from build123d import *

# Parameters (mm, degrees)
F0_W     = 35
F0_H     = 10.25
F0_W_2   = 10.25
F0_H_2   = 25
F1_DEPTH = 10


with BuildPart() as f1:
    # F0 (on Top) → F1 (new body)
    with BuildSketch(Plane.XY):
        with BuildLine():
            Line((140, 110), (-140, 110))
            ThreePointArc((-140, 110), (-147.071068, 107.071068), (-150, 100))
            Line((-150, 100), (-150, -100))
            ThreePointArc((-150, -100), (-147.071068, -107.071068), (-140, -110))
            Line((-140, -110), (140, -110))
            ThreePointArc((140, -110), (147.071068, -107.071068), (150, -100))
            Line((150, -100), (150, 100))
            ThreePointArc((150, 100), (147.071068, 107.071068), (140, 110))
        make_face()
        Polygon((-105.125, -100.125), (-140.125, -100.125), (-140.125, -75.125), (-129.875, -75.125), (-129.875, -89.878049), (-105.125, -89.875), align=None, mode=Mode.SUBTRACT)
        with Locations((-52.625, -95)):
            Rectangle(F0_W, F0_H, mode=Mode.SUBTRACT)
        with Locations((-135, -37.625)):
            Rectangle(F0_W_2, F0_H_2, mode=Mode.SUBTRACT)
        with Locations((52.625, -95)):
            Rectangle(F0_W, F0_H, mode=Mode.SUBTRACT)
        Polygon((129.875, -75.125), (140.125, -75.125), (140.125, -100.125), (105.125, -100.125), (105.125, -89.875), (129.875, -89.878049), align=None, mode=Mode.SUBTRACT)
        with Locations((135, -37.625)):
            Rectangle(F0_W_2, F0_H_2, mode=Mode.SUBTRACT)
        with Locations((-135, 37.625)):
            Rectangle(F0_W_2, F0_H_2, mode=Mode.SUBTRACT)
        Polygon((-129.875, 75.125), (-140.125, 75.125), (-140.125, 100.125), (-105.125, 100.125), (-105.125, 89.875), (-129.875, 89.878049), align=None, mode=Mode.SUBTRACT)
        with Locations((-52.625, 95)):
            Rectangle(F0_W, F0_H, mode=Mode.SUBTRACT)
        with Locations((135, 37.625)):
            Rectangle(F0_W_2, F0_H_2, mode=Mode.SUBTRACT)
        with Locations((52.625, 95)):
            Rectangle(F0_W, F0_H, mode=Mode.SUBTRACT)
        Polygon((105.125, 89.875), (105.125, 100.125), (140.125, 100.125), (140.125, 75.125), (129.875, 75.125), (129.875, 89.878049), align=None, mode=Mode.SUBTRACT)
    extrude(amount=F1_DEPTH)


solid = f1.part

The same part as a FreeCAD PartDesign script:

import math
import FreeCAD as App
import Part
import Sketcher
from FreeCAD import Vector
Q = App.Units.Quantity

doc = App.newDocument("Part")
body = doc.addObject("PartDesign::Body", "Body")

# Sketch on XY plane
sketch1 = doc.addObject("Sketcher::SketchObject", "Sketch")
body.addObject(sketch1)
sketch1.AttachmentSupport = (doc.XY_Plane, [""])
sketch1.MapMode = "FlatFace"
sketch1.addGeometry(Part.LineSegment(Vector(140, 110, 0), Vector(-140, 110, 0)), False)
sketch1.addGeometry(Part.ArcOfCircle(Part.Circle(Vector(-140, 100, 0), Vector(0, 0, 1), 10), math.radians(90), math.radians(180)), False)
sketch1.addGeometry(Part.LineSegment(Vector(-150, 100, 0), Vector(-150, -100, 0)), False)
sketch1.addGeometry(Part.ArcOfCircle(Part.Circle(Vector(-140, -100, 0), Vector(0, 0, 1), 10), math.radians(180), math.radians(270)), False)
sketch1.addGeometry(Part.LineSegment(Vector(-140, -110, 0), Vector(140, -110, 0)), False)
sketch1.addGeometry(Part.ArcOfCircle(Part.Circle(Vector(140, -100, 0), Vector(0, 0, 1), 10), math.radians(-90), math.radians(0)), False)
sketch1.addGeometry(Part.LineSegment(Vector(150, -100, 0), Vector(150, 100, 0)), False)
sketch1.addGeometry(Part.ArcOfCircle(Part.Circle(Vector(140, 100, 0), Vector(0, 0, 1), 10), math.radians(0), math.radians(90)), False)
sketch1.addGeometry(Part.LineSegment(Vector(-105, -90, 0), Vector(-105, -100, 0)), False)
sketch1.addGeometry(Part.LineSegment(Vector(-105, -100, 0), Vector(-140, -100, 0)), False)
sketch1.addGeometry(Part.LineSegment(Vector(-140, -100, 0), Vector(-140, -75, 0)), False)
sketch1.addGeometry(Part.LineSegment(Vector(-140, -75, 0), Vector(-130, -75, 0)), False)
sketch1.addGeometry(Part.LineSegment(Vector(-130, -75, 0), Vector(-130, -90, 0)), False)
sketch1.addGeometry(Part.LineSegment(Vector(-130, -90, 0), Vector(-105, -90, 0)), False)
sketch1.addGeometry(Part.LineSegment(Vector(-35, -100, 0), Vector(-70, -100, 0)), False)
sketch1.addGeometry(Part.LineSegment(Vector(-70, -100, 0), Vector(-70, -90, 0)), False)
sketch1.addGeometry(Part.LineSegment(Vector(-70, -90, 0), Vector(-35, -90, 0)), False)
sketch1.addGeometry(Part.LineSegment(Vector(-35, -90, 0), Vector(-35, -100, 0)), False)
sketch1.addGeometry(Part.LineSegment(Vector(-130, -50, 0), Vector(-140, -50, 0)), False)
sketch1.addGeometry(Part.LineSegment(Vector(-140, -50, 0), Vector(-140, -25, 0)), False)
sketch1.addGeometry(Part.LineSegment(Vector(-140, -25, 0), Vector(-130, -25, 0)), False)
sketch1.addGeometry(Part.LineSegment(Vector(-130, -25, 0), Vector(-130, -50, 0)), False)
sketch1.addGeometry(Part.LineSegment(Vector(70, -100, 0), Vector(35, -100, 0)), False)
sketch1.addGeometry(Part.LineSegment(Vector(35, -100, 0), Vector(35, -90, 0)), False)
sketch1.addGeometry(Part.LineSegment(Vector(35, -90, 0), Vector(70, -90, 0)), False)
sketch1.addGeometry(Part.LineSegment(Vector(70, -90, 0), Vector(70, -100, 0)), False)
sketch1.addGeometry(Part.LineSegment(Vector(130, -90, 0), Vector(130, -75, 0)), False)
sketch1.addGeometry(Part.LineSegment(Vector(130, -75, 0), Vector(140, -75, 0)), False)
sketch1.addGeometry(Part.LineSegment(Vector(140, -75, 0), Vector(140, -100, 0)), False)
sketch1.addGeometry(Part.LineSegment(Vector(140, -100, 0), Vector(105, -100, 0)), False)
sketch1.addGeometry(Part.LineSegment(Vector(105, -100, 0), Vector(105, -90, 0)), False)
sketch1.addGeometry(Part.LineSegment(Vector(105, -90, 0), Vector(130, -90, 0)), False)
sketch1.addGeometry(Part.LineSegment(Vector(140, -50, 0), Vector(130, -50, 0)), False)
sketch1.addGeometry(Part.LineSegment(Vector(130, -50, 0), Vector(130, -25, 0)), False)
sketch1.addGeometry(Part.LineSegment(Vector(130, -25, 0), Vector(140, -25, 0)), False)
sketch1.addGeometry(Part.LineSegment(Vector(140, -25, 0), Vector(140, -50, 0)), False)
sketch1.addGeometry(Part.LineSegment(Vector(-130, 25, 0), Vector(-140, 25, 0)), False)
sketch1.addGeometry(Part.LineSegment(Vector(-140, 25, 0), Vector(-140, 50, 0)), False)
sketch1.addGeometry(Part.LineSegment(Vector(-140, 50, 0), Vector(-130, 50, 0)), False)
sketch1.addGeometry(Part.LineSegment(Vector(-130, 50, 0), Vector(-130, 25, 0)), False)
sketch1.addGeometry(Part.LineSegment(Vector(-130, 90, 0), Vector(-130, 75, 0)), False)
sketch1.addGeometry(Part.LineSegment(Vector(-130, 75, 0), Vector(-140, 75, 0)), False)
sketch1.addGeometry(Part.LineSegment(Vector(-140, 75, 0), Vector(-140, 100, 0)), False)
sketch1.addGeometry(Part.LineSegment(Vector(-140, 100, 0), Vector(-105, 100, 0)), False)
sketch1.addGeometry(Part.LineSegment(Vector(-105, 100, 0), Vector(-105, 90, 0)), False)
sketch1.addGeometry(Part.LineSegment(Vector(-105, 90, 0), Vector(-130, 90, 0)), False)
sketch1.addGeometry(Part.LineSegment(Vector(-35, 90, 0), Vector(-70, 90, 0)), False)
sketch1.addGeometry(Part.LineSegment(Vector(-70, 90, 0), Vector(-70, 100, 0)), False)
sketch1.addGeometry(Part.LineSegment(Vector(-70, 100, 0), Vector(-35, 100, 0)), False)
sketch1.addGeometry(Part.LineSegment(Vector(-35, 100, 0), Vector(-35, 90, 0)), False)
sketch1.addGeometry(Part.LineSegment(Vector(140, 25, 0), Vector(130, 25, 0)), False)
sketch1.addGeometry(Part.LineSegment(Vector(130, 25, 0), Vector(130, 50, 0)), False)
sketch1.addGeometry(Part.LineSegment(Vector(130, 50, 0), Vector(140, 50, 0)), False)
sketch1.addGeometry(Part.LineSegment(Vector(140, 50, 0), Vector(140, 25, 0)), False)
sketch1.addGeometry(Part.LineSegment(Vector(70, 90, 0), Vector(35, 90, 0)), False)
sketch1.addGeometry(Part.LineSegment(Vector(35, 90, 0), Vector(35, 100, 0)), False)
sketch1.addGeometry(Part.LineSegment(Vector(35, 100, 0), Vector(70, 100, 0)), False)
sketch1.addGeometry(Part.LineSegment(Vector(70, 100, 0), Vector(70, 90, 0)), False)
sketch1.addGeometry(Part.LineSegment(Vector(130, 90, 0), Vector(105, 90, 0)), False)
sketch1.addGeometry(Part.LineSegment(Vector(105, 90, 0), Vector(105, 100, 0)), False)
sketch1.addGeometry(Part.LineSegment(Vector(105, 100, 0), Vector(140, 100, 0)), False)
sketch1.addGeometry(Part.LineSegment(Vector(140, 100, 0), Vector(140, 75, 0)), False)
sketch1.addGeometry(Part.LineSegment(Vector(140, 75, 0), Vector(130, 75, 0)), False)
sketch1.addGeometry(Part.LineSegment(Vector(130, 75, 0), Vector(130, 90, 0)), False)
sketch1.addConstraint(Sketcher.Constraint("Tangent", 0, 2, 1, 1))
sketch1.addConstraint(Sketcher.Constraint("Tangent", 1, 2, 2, 1))
sketch1.addConstraint(Sketcher.Constraint("Tangent", 2, 2, 3, 1))
sketch1.addConstraint(Sketcher.Constraint("Tangent", 3, 2, 4, 1))
sketch1.addConstraint(Sketcher.Constraint("Tangent", 4, 2, 5, 1))
sketch1.addConstraint(Sketcher.Constraint("Tangent", 5, 2, 6, 1))
sketch1.addConstraint(Sketcher.Constraint("Tangent", 6, 2, 7, 1))
sketch1.addConstraint(Sketcher.Constraint("Tangent", 7, 2, 0, 1))
sketch1.addConstraint(Sketcher.Constraint("Coincident", 8, 2, 9, 1))
sketch1.addConstraint(Sketcher.Constraint("Coincident", 9, 2, 10, 1))
sketch1.addConstraint(Sketcher.Constraint("Coincident", 10, 2, 11, 1))
sketch1.addConstraint(Sketcher.Constraint("Coincident", 11, 2, 12, 1))
sketch1.addConstraint(Sketcher.Constraint("Coincident", 12, 2, 13, 1))
sketch1.addConstraint(Sketcher.Constraint("Coincident", 13, 2, 8, 1))
sketch1.addConstraint(Sketcher.Constraint("Coincident", 14, 2, 15, 1))
sketch1.addConstraint(Sketcher.Constraint("Coincident", 15, 2, 16, 1))
sketch1.addConstraint(Sketcher.Constraint("Coincident", 16, 2, 17, 1))
sketch1.addConstraint(Sketcher.Constraint("Coincident", 17, 2, 14, 1))
sketch1.addConstraint(Sketcher.Constraint("Coincident", 18, 2, 19, 1))
sketch1.addConstraint(Sketcher.Constraint("Coincident", 19, 2, 20, 1))
sketch1.addConstraint(Sketcher.Constraint("Coincident", 20, 2, 21, 1))
sketch1.addConstraint(Sketcher.Constraint("Coincident", 21, 2, 18, 1))
sketch1.addConstraint(Sketcher.Constraint("Coincident", 22, 2, 23, 1))
sketch1.addConstraint(Sketcher.Constraint("Coincident", 23, 2, 24, 1))
sketch1.addConstraint(Sketcher.Constraint("Coincident", 24, 2, 25, 1))
sketch1.addConstraint(Sketcher.Constraint("Coincident", 25, 2, 22, 1))
sketch1.addConstraint(Sketcher.Constraint("Coincident", 26, 2, 27, 1))
sketch1.addConstraint(Sketcher.Constraint("Coincident", 27, 2, 28, 1))
sketch1.addConstraint(Sketcher.Constraint("Coincident", 28, 2, 29, 1))
sketch1.addConstraint(Sketcher.Constraint("Coincident", 29, 2, 30, 1))
sketch1.addConstraint(Sketcher.Constraint("Coincident", 30, 2, 31, 1))
sketch1.addConstraint(Sketcher.Constraint("Coincident", 31, 2, 26, 1))
sketch1.addConstraint(Sketcher.Constraint("Coincident", 32, 2, 33, 1))
sketch1.addConstraint(Sketcher.Constraint("Coincident", 33, 2, 34, 1))
sketch1.addConstraint(Sketcher.Constraint("Coincident", 34, 2, 35, 1))
sketch1.addConstraint(Sketcher.Constraint("Coincident", 35, 2, 32, 1))
sketch1.addConstraint(Sketcher.Constraint("Coincident", 36, 2, 37, 1))
sketch1.addConstraint(Sketcher.Constraint("Coincident", 37, 2, 38, 1))
sketch1.addConstraint(Sketcher.Constraint("Coincident", 38, 2, 39, 1))
sketch1.addConstraint(Sketcher.Constraint("Coincident", 39, 2, 36, 1))
sketch1.addConstraint(Sketcher.Constraint("Coincident", 40, 2, 41, 1))
sketch1.addConstraint(Sketcher.Constraint("Coincident", 41, 2, 42, 1))
sketch1.addConstraint(Sketcher.Constraint("Coincident", 42, 2, 43, 1))
sketch1.addConstraint(Sketcher.Constraint("Coincident", 43, 2, 44, 1))
sketch1.addConstraint(Sketcher.Constraint("Coincident", 44, 2, 45, 1))
sketch1.addConstraint(Sketcher.Constraint("Coincident", 45, 2, 40, 1))
sketch1.addConstraint(Sketcher.Constraint("Coincident", 46, 2, 47, 1))
sketch1.addConstraint(Sketcher.Constraint("Coincident", 47, 2, 48, 1))
sketch1.addConstraint(Sketcher.Constraint("Coincident", 48, 2, 49, 1))
sketch1.addConstraint(Sketcher.Constraint("Coincident", 49, 2, 46, 1))
sketch1.addConstraint(Sketcher.Constraint("Coincident", 50, 2, 51, 1))
sketch1.addConstraint(Sketcher.Constraint("Coincident", 51, 2, 52, 1))
sketch1.addConstraint(Sketcher.Constraint("Coincident", 52, 2, 53, 1))
sketch1.addConstraint(Sketcher.Constraint("Coincident", 53, 2, 50, 1))
sketch1.addConstraint(Sketcher.Constraint("Coincident", 54, 2, 55, 1))
sketch1.addConstraint(Sketcher.Constraint("Coincident", 55, 2, 56, 1))
sketch1.addConstraint(Sketcher.Constraint("Coincident", 56, 2, 57, 1))
sketch1.addConstraint(Sketcher.Constraint("Coincident", 57, 2, 54, 1))
sketch1.addConstraint(Sketcher.Constraint("Coincident", 58, 2, 59, 1))
sketch1.addConstraint(Sketcher.Constraint("Coincident", 59, 2, 60, 1))
sketch1.addConstraint(Sketcher.Constraint("Coincident", 60, 2, 61, 1))
sketch1.addConstraint(Sketcher.Constraint("Coincident", 61, 2, 62, 1))
sketch1.addConstraint(Sketcher.Constraint("Coincident", 62, 2, 63, 1))
sketch1.addConstraint(Sketcher.Constraint("Coincident", 63, 2, 58, 1))
sketch1.addConstraint(Sketcher.Constraint("Horizontal", 0))
sketch1.addConstraint(Sketcher.Constraint("Vertical", 2))
sketch1.addConstraint(Sketcher.Constraint("Horizontal", 4))
sketch1.addConstraint(Sketcher.Constraint("Vertical", 6))
sketch1.addConstraint(Sketcher.Constraint("Vertical", 8))
sketch1.addConstraint(Sketcher.Constraint("Horizontal", 9))
sketch1.addConstraint(Sketcher.Constraint("Vertical", 10))
sketch1.addConstraint(Sketcher.Constraint("Horizontal", 11))
sketch1.addConstraint(Sketcher.Constraint("Vertical", 12))
sketch1.addConstraint(Sketcher.Constraint("Horizontal", 14))
sketch1.addConstraint(Sketcher.Constraint("Vertical", 15))
sketch1.addConstraint(Sketcher.Constraint("Horizontal", 16))
sketch1.addConstraint(Sketcher.Constraint("Vertical", 17))
sketch1.addConstraint(Sketcher.Constraint("Horizontal", 18))
sketch1.addConstraint(Sketcher.Constraint("Vertical", 19))
sketch1.addConstraint(Sketcher.Constraint("Horizontal", 20))
sketch1.addConstraint(Sketcher.Constraint("Vertical", 21))
sketch1.addConstraint(Sketcher.Constraint("Horizontal", 22))
sketch1.addConstraint(Sketcher.Constraint("Vertical", 23))
sketch1.addConstraint(Sketcher.Constraint("Horizontal", 24))
sketch1.addConstraint(Sketcher.Constraint("Vertical", 25))
sketch1.addConstraint(Sketcher.Constraint("Vertical", 26))
sketch1.addConstraint(Sketcher.Constraint("Horizontal", 27))
sketch1.addConstraint(Sketcher.Constraint("Vertical", 28))
sketch1.addConstraint(Sketcher.Constraint("Horizontal", 29))
sketch1.addConstraint(Sketcher.Constraint("Vertical", 30))
sketch1.addConstraint(Sketcher.Constraint("Horizontal", 32))
sketch1.addConstraint(Sketcher.Constraint("Vertical", 33))
sketch1.addConstraint(Sketcher.Constraint("Horizontal", 34))
sketch1.addConstraint(Sketcher.Constraint("Vertical", 35))
sketch1.addConstraint(Sketcher.Constraint("Horizontal", 36))
sketch1.addConstraint(Sketcher.Constraint("Vertical", 37))
sketch1.addConstraint(Sketcher.Constraint("Horizontal", 38))
sketch1.addConstraint(Sketcher.Constraint("Vertical", 39))
sketch1.addConstraint(Sketcher.Constraint("Vertical", 40))
sketch1.addConstraint(Sketcher.Constraint("Horizontal", 41))
sketch1.addConstraint(Sketcher.Constraint("Vertical", 42))
sketch1.addConstraint(Sketcher.Constraint("Horizontal", 43))
sketch1.addConstraint(Sketcher.Constraint("Vertical", 44))
sketch1.addConstraint(Sketcher.Constraint("Horizontal", 46))
sketch1.addConstraint(Sketcher.Constraint("Vertical", 47))
sketch1.addConstraint(Sketcher.Constraint("Horizontal", 48))
sketch1.addConstraint(Sketcher.Constraint("Vertical", 49))
sketch1.addConstraint(Sketcher.Constraint("Horizontal", 50))
sketch1.addConstraint(Sketcher.Constraint("Vertical", 51))
sketch1.addConstraint(Sketcher.Constraint("Horizontal", 52))
sketch1.addConstraint(Sketcher.Constraint("Vertical", 53))
sketch1.addConstraint(Sketcher.Constraint("Horizontal", 54))
sketch1.addConstraint(Sketcher.Constraint("Vertical", 55))
sketch1.addConstraint(Sketcher.Constraint("Horizontal", 56))
sketch1.addConstraint(Sketcher.Constraint("Vertical", 57))
sketch1.addConstraint(Sketcher.Constraint("Vertical", 59))
sketch1.addConstraint(Sketcher.Constraint("Horizontal", 60))
sketch1.addConstraint(Sketcher.Constraint("Vertical", 61))
sketch1.addConstraint(Sketcher.Constraint("Horizontal", 62))
sketch1.addConstraint(Sketcher.Constraint("Vertical", 63))
sketch1.addConstraint(Sketcher.Constraint("Equal", 1, 3))
sketch1.addConstraint(Sketcher.Constraint("Equal", 3, 5))
sketch1.addConstraint(Sketcher.Constraint("Equal", 5, 7))
sketch1.addConstraint(Sketcher.Constraint("Symmetric", 1, 3, 5, 3, -1, 1))
sketch1.addConstraint(Sketcher.Constraint("Symmetric", 34, 2, 36, 2, -1, 1))
sketch1.addConstraint(Sketcher.Constraint("Symmetric", 32, 2, 38, 2, -1, 1))
sketch1.addConstraint(Sketcher.Constraint("Symmetric", 26, 2, 40, 2, -1, 1))
sketch1.addConstraint(Sketcher.Constraint("Symmetric", 28, 2, 42, 2, -1, 1))
sketch1.addConstraint(Sketcher.Constraint("Symmetric", 30, 2, 44, 2, -1, 1))
sketch1.addConstraint(Sketcher.Constraint("Symmetric", 24, 2, 46, 2, -1, 1))
sketch1.addConstraint(Sketcher.Constraint("Symmetric", 22, 2, 48, 2, -1, 1))
sketch1.addConstraint(Sketcher.Constraint("Symmetric", 20, 2, 50, 2, -1, 1))
sketch1.addConstraint(Sketcher.Constraint("Symmetric", 18, 2, 52, 2, -1, 1))
sketch1.addConstraint(Sketcher.Constraint("Symmetric", 16, 2, 54, 2, -1, 1))
sketch1.addConstraint(Sketcher.Constraint("Symmetric", 14, 2, 56, 2, -1, 1))
sketch1.addConstraint(Sketcher.Constraint("Symmetric", 13, 2, 58, 2, -1, 1))
sketch1.addConstraint(Sketcher.Constraint("Symmetric", 9, 2, 60, 2, -1, 1))
sketch1.addConstraint(Sketcher.Constraint("Symmetric", 11, 2, 62, 2, -1, 1))
sketch1.addConstraint(Sketcher.Constraint("Symmetric", 17, 2, 22, 2, -2))
sketch1.addConstraint(Sketcher.Constraint("Symmetric", 15, 2, 24, 2, -2))
sketch1.addConstraint(Sketcher.Constraint("Symmetric", 11, 2, 26, 2, -2))
sketch1.addConstraint(Sketcher.Constraint("Symmetric", 9, 2, 28, 2, -2))
sketch1.addConstraint(Sketcher.Constraint("Symmetric", 13, 2, 30, 2, -2))
sketch1.addConstraint(Sketcher.Constraint("Symmetric", 21, 2, 32, 2, -2))
sketch1.addConstraint(Sketcher.Constraint("Symmetric", 19, 2, 34, 2, -2))
sketch1.addConstraint(Sketcher.Constraint("Parallel", 31, 45))
sketch1.addConstraint(Sketcher.Constraint("Parallel", 13, 58))
sketch1.addConstraint(Sketcher.Constraint("Horizontal", 9, 2, 14, 2))
sketch1.addConstraint(Sketcher.Constraint("Horizontal", 13, 2, 15, 2))
sketch1.addConstraint(Sketcher.Constraint("Horizontal", 12, 2, 31, 2))
sketch1.addConstraint(Sketcher.Constraint("Vertical", 10, 2, 18, 2))
sketch1.addConstraint(Sketcher.Constraint("Vertical", 12, 2, 20, 2))
sketch1.addConstraint(Sketcher.Constraint("Equal", 9, 14))
sketch1.addConstraint(Sketcher.Constraint("Equal", 62, 8))
sketch1.addConstraint(Sketcher.Constraint("Equal", 10, 19))
sketch1.addConstraint(Sketcher.Constraint("Radius", 1, Q("9.999999 mm")))
sketch1.addConstraint(Sketcher.Constraint("DistanceX", 0, 2, 0, 1, Q("280 mm")))
sketch1.addConstraint(Sketcher.Constraint("DistanceX", 9, 2, 9, 1, Q("35 mm")))
sketch1.addConstraint(Sketcher.Constraint("DistanceY", 2, 2, 2, 1, Q("200 mm")))
sketch1.addConstraint(Sketcher.Constraint("DistanceY", 10, 1, 10, 2, Q("25 mm")))
sketch1.addConstraint(Sketcher.Constraint("DistanceX", 11, 1, 11, 2, Q("10.25 mm")))
sketch1.addConstraint(Sketcher.Constraint("DistanceX", 8, 2, -1, 1, Q("105.125 mm")))
sketch1.addConstraint(Sketcher.Constraint("DistanceY", 8, 2, -1, 1, Q("100.125 mm")))
sketch1.addConstraint(Sketcher.Constraint("DistanceX", 14, 2, -1, 1, Q("70.125 mm")))
sketch1.addConstraint(Sketcher.Constraint("DistanceY", 18, 2, -1, 1, Q("50.125 mm")))
sketch1.addConstraint(Sketcher.Constraint("DistanceY", 12, 2, 12, 1, Q("14.753049 mm")))
pad1 = doc.addObject("PartDesign::Pad", "Pad")
body.addObject(pad1)
pad1.Profile = sketch1
pad1.Length = 10

doc.recompute()
